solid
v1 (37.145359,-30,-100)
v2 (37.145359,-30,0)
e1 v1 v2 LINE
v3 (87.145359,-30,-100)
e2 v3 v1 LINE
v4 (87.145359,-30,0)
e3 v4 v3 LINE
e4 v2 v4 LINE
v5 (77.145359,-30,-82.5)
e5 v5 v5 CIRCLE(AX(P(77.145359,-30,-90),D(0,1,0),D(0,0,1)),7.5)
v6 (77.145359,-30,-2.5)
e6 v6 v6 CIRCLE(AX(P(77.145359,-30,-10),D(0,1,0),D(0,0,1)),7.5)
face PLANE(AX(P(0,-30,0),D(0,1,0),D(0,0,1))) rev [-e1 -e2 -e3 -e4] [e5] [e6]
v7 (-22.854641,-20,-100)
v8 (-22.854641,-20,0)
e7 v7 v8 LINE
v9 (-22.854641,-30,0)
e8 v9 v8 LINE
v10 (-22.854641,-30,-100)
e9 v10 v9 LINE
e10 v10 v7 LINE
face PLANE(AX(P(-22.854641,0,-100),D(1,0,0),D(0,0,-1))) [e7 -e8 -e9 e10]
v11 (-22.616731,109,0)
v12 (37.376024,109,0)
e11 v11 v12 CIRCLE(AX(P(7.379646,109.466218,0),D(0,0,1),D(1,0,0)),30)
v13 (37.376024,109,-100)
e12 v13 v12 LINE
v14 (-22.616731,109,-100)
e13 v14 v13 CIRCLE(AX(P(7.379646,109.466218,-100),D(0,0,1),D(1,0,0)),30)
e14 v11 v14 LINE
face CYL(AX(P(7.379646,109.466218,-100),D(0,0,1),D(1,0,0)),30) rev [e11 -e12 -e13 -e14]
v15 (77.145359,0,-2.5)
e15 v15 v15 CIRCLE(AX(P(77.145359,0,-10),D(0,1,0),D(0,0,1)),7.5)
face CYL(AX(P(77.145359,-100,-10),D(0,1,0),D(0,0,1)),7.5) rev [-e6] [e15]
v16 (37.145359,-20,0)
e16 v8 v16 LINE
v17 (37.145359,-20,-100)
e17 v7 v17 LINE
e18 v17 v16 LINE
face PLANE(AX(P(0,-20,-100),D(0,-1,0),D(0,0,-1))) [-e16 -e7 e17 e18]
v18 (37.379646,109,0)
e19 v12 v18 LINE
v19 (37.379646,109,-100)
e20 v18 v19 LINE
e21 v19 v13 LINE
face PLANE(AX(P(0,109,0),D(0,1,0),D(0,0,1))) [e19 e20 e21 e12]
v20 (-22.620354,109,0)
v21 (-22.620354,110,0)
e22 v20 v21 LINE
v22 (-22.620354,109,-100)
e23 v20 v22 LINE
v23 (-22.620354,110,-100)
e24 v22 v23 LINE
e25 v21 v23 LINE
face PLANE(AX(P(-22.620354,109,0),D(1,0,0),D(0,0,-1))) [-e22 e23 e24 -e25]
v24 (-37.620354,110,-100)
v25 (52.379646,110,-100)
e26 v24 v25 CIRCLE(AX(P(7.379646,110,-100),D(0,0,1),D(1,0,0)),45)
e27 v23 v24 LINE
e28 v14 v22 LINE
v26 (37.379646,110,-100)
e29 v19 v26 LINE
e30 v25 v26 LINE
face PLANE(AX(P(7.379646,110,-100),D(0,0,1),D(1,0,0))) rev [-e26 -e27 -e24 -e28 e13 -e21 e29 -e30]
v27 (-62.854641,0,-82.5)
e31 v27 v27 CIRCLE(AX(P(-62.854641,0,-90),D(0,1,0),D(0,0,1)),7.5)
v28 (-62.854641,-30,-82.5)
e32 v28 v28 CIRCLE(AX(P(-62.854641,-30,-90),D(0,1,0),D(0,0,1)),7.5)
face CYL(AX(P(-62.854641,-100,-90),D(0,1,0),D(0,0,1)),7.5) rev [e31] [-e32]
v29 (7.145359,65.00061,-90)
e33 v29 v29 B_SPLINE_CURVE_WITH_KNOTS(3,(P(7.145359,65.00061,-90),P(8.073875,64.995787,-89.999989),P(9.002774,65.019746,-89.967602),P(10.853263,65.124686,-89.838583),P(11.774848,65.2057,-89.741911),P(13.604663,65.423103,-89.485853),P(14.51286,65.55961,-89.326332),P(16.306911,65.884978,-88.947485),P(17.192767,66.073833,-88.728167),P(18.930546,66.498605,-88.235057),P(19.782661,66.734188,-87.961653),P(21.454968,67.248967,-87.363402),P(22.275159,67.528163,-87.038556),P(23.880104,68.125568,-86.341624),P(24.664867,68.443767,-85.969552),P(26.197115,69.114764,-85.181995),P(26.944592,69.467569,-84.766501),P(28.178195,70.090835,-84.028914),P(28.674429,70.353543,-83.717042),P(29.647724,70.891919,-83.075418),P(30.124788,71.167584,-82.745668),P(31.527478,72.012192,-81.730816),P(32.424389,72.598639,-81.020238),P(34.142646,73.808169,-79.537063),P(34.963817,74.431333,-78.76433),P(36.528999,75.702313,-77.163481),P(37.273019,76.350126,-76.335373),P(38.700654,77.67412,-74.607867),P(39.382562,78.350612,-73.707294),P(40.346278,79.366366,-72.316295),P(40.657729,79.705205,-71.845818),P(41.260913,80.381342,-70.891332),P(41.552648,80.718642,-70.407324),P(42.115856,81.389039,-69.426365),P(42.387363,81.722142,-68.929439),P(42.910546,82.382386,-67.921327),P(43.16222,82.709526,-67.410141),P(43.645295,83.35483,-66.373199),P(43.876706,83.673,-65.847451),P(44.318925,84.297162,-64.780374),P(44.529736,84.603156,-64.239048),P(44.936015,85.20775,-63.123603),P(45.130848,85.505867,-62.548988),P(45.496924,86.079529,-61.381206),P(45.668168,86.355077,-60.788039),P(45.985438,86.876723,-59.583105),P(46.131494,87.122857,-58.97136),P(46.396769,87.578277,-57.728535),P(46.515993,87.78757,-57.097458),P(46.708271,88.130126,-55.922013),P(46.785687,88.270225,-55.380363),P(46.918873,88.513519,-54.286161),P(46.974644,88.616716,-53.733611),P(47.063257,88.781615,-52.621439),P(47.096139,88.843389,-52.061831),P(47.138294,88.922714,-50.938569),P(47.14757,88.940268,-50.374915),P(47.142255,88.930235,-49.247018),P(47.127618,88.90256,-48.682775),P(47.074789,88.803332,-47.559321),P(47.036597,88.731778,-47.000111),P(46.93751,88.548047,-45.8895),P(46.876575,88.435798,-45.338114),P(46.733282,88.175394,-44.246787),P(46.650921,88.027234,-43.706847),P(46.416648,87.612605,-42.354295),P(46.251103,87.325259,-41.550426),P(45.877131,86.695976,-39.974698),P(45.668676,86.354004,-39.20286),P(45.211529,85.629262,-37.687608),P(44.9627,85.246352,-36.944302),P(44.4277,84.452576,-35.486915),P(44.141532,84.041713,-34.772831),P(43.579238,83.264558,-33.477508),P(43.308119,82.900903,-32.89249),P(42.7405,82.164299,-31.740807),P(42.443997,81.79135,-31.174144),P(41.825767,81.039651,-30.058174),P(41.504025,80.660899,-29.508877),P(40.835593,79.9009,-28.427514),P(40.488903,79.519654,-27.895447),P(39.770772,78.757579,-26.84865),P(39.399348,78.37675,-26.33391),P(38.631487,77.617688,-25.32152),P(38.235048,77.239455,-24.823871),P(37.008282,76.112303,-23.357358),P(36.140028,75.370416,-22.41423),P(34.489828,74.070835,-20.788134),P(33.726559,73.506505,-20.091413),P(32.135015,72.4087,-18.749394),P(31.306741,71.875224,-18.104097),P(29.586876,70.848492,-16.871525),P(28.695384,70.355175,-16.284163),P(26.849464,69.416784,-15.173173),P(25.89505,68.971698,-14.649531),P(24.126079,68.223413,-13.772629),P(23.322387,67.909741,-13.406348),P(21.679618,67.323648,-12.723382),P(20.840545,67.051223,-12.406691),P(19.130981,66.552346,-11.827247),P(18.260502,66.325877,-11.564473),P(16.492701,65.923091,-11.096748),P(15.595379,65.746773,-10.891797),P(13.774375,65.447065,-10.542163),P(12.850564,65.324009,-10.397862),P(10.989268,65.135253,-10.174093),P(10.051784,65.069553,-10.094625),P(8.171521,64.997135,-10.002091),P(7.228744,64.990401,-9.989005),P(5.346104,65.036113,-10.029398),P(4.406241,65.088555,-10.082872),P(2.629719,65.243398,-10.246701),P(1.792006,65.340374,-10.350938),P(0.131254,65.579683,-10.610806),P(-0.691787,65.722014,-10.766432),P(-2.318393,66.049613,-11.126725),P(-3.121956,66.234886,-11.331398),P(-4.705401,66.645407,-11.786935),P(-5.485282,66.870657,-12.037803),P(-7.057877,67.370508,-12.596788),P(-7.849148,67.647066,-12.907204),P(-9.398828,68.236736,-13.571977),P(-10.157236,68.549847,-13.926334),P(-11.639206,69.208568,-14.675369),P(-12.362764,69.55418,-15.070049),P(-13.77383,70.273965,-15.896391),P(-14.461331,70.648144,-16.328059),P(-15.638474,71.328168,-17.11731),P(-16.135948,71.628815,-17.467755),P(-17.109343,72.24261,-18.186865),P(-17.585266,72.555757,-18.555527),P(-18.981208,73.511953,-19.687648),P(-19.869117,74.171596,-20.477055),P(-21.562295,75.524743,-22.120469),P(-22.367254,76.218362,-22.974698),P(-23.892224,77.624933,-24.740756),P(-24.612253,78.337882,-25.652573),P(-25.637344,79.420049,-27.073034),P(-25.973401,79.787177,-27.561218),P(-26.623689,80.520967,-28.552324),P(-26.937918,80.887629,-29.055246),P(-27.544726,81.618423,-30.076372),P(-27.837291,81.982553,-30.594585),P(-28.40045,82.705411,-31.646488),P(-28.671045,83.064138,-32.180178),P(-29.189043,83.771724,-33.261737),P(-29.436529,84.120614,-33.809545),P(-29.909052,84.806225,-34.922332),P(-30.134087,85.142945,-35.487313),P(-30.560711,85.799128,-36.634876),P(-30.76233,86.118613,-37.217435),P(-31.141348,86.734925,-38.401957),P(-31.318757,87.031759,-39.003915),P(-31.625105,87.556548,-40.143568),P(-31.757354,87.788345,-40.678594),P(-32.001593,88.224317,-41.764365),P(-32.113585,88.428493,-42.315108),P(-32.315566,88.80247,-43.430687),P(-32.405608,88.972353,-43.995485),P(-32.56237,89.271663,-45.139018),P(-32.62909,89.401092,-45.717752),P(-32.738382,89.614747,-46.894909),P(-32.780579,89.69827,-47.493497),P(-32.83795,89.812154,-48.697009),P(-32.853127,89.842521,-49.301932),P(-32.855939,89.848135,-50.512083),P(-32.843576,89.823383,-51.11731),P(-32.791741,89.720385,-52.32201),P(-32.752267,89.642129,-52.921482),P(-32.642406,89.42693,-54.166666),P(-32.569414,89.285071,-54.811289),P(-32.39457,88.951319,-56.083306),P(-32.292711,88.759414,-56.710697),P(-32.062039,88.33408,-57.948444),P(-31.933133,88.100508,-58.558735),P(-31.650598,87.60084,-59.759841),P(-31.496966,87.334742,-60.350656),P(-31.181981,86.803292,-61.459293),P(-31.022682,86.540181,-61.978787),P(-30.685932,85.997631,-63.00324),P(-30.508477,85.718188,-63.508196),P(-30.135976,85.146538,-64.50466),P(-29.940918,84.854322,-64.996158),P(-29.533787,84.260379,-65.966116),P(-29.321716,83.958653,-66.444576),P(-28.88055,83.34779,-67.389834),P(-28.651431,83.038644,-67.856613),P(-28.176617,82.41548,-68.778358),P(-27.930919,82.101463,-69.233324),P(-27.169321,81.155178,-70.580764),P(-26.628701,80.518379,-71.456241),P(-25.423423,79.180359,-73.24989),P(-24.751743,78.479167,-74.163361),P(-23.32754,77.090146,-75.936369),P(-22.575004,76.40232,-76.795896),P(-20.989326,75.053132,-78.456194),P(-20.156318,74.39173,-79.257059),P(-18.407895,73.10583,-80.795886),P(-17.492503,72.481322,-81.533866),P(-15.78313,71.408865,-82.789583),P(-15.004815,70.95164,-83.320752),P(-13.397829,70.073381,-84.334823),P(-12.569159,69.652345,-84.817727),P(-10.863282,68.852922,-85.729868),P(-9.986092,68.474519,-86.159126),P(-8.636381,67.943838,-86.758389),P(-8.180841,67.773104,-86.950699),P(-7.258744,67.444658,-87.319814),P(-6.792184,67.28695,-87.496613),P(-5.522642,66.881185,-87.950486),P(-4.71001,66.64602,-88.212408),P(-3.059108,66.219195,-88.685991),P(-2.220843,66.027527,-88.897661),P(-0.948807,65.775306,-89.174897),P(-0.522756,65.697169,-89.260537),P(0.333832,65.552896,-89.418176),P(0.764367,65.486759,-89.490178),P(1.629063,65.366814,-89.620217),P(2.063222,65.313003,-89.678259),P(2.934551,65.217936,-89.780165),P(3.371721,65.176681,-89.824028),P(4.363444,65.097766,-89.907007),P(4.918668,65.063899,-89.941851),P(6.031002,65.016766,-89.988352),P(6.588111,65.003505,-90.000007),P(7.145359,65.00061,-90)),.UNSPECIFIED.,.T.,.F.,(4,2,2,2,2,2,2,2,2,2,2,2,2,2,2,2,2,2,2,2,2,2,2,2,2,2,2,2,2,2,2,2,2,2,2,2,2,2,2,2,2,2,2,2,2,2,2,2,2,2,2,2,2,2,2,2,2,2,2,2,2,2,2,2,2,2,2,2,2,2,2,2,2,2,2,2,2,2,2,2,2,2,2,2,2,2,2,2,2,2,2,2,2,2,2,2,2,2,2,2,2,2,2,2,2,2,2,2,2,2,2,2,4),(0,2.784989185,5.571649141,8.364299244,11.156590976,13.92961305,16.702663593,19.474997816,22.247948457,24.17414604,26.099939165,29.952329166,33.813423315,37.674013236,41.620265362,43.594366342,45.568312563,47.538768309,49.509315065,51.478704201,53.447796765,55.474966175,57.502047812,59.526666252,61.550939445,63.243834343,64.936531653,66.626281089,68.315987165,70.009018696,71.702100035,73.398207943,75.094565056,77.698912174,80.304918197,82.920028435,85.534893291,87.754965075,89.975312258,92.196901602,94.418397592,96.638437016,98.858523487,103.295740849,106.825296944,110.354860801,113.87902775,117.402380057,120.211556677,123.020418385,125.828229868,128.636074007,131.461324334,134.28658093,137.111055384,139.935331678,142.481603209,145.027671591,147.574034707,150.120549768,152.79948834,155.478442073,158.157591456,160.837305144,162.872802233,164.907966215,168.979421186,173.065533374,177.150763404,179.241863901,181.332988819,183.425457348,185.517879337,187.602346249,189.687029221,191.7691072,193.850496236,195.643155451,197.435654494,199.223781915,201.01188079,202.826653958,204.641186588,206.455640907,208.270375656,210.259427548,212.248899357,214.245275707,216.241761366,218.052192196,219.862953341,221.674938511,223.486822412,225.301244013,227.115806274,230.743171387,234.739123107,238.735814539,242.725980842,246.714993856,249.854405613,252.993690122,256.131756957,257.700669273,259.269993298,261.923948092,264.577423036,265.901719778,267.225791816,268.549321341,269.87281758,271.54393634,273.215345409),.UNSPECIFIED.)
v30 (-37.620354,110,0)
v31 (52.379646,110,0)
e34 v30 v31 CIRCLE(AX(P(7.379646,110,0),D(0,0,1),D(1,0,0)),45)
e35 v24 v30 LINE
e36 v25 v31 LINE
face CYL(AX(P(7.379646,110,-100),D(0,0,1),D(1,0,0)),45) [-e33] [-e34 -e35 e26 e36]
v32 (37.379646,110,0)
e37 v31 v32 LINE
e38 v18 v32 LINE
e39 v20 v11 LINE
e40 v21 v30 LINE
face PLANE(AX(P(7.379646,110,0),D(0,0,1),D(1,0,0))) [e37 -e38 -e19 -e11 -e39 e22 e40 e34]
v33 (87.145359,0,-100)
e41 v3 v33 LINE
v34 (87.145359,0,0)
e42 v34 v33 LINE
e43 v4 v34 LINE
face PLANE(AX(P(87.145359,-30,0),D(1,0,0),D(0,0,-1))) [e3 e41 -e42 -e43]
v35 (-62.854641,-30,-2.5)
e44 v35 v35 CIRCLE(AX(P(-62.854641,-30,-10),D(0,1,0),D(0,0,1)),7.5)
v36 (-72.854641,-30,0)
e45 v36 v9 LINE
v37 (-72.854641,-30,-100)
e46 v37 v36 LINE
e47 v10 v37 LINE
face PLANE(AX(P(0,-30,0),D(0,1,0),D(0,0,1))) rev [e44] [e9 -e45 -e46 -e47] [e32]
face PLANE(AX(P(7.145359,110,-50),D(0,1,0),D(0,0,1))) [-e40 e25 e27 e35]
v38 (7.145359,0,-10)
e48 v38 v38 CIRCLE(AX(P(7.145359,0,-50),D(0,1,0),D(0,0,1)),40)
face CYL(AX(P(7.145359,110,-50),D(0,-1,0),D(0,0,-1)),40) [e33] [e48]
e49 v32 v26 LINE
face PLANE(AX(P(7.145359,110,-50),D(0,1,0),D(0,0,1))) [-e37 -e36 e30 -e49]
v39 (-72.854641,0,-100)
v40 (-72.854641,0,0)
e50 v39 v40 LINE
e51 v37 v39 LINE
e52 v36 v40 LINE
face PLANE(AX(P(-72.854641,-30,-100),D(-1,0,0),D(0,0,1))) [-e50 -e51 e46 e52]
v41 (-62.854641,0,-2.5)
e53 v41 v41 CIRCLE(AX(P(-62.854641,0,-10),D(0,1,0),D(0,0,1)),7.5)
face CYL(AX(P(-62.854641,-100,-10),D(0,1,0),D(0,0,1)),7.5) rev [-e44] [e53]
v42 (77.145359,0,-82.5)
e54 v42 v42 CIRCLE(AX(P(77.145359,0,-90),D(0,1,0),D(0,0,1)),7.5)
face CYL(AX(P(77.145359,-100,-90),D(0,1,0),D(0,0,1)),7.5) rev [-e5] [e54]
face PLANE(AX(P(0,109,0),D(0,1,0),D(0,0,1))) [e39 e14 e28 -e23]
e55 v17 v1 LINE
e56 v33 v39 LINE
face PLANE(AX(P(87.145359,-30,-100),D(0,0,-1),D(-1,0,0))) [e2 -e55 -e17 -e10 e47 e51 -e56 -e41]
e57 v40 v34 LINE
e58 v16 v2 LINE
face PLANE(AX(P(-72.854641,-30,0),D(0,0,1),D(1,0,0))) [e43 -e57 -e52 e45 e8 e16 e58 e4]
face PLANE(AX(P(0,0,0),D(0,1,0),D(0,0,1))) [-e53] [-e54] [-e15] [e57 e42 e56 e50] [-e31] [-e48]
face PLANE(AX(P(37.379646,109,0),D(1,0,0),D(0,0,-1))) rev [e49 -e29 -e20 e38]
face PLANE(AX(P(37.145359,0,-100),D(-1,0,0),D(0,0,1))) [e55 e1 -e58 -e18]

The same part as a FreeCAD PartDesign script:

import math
import FreeCAD as App
import Part
import Sketcher

V = App.Vector
Q = App.Units.Quantity

doc = App.newDocument("Part")
body = doc.addObject("PartDesign::Body", "Body")

# Sketch on XZ plane
sketch1 = body.newObject("Sketcher::SketchObject", "Sketch")
sketch1.AttachmentSupport = (doc.getObject("XZ_Plane"), [""])
sketch1.MapMode = "FlatFace"
sketch1.addGeometry([
    Part.LineSegment(V(-72.854641, -100, 0), V(-72.854641, 0, 0)),
    Part.LineSegment(V(-72.854641, 0, 0), V(87.145359, 0, 0)),
    Part.LineSegment(V(87.145359, 0, 0), V(87.145359, -100, 0)),
    Part.LineSegment(V(87.145359, -100, 0), V(-72.854641, -100, 0)),
], False)
sketch1.addConstraint([
    Sketcher.Constraint("Coincident", 0, 2, 1, 1),
    Sketcher.Constraint("Coincident", 1, 2, 2, 1),
    Sketcher.Constraint("Coincident", 2, 2, 3, 1),
    Sketcher.Constraint("Coincident", 3, 2, 0, 1),
    Sketcher.Constraint("Vertical", 0),
    Sketcher.Constraint("Horizontal", 1),
    Sketcher.Constraint("Vertical", 2),
    Sketcher.Constraint("Horizontal", 3),
    Sketcher.Constraint("PointOnObject", 0, 2, -1),
    Sketcher.Constraint("DistanceX", 1, 1, 1, 2, Q("160 mm")),
    Sketcher.Constraint("DistanceY", 0, 1, 0, 2, Q("100 mm")),
    Sketcher.Constraint("DistanceX", 0, 2, -1, 1, Q("72.854641 mm")),
])
pad1 = body.newObject("PartDesign::Pad", "Pad")
pad1.Profile = sketch1
pad1.Length = 30

# Sketch on XZ plane
sketch2 = body.newObject("Sketcher::SketchObject", "Sketch001")
sketch2.AttachmentSupport = (doc.getObject("XZ_Plane"), [""])
sketch2.MapMode = "FlatFace"
sketch2.addGeometry(Part.Circle(V(7.145359, -50, 0), V(0, 0, 1), 40), False)
sketch2.addConstraint([
    Sketcher.Constraint("Diameter", 0, Q("80 mm")),
    Sketcher.Constraint("DistanceY", 0, 3, -1, 1, Q("50 mm")),
    Sketcher.Constraint("DistanceX", -1, 1, 0, 3, Q("7.145359 mm")),
])
pad2 = body.newObject("PartDesign::Pad", "Pad001")
pad2.Profile = sketch2
pad2.Length = 110
pad2.Reversed = True

# Sketch on XY plane
sketch3 = body.newObject("Sketcher::SketchObject", "Sketch002")
sketch3.AttachmentSupport = (doc.getObject("XY_Plane"), [""])
sketch3.MapMode = "FlatFace"
sketch3.addGeometry([
    Part.LineSegment(V(52.379646, 110, 0), V(-37.620354, 110, 0)),
    Part.ArcOfCircle(Part.Circle(V(7.379646, 110, 0), V(0, 0, 1), 45), math.radians(180), math.radians(360)),
    Part.LineSegment(V(-22.620354, 109.466218, 0), V(37.379646, 109.466218, 0)),
    Part.ArcOfCircle(Part.Circle(V(7.379646, 109.466218, 0), V(0, 0, 1), 30), math.radians(180), math.radians(360)),
], False)
sketch3.addConstraint([
    Sketcher.Constraint("Coincident", 0, 1, 1, 2),
    Sketcher.Constraint("Coincident", 1, 1, 0, 2),
    Sketcher.Constraint("Coincident", 2, 1, 3, 1),
    Sketcher.Constraint("Coincident", 3, 2, 2, 2),
    Sketcher.Constraint("Horizontal", 0),
    Sketcher.Constraint("Horizontal", 2),
    Sketcher.Constraint("Horizontal", 1, 3, 0, 1),
    Sketcher.Constraint("Horizontal", 3, 3, 2, 1),
    Sketcher.Constraint("Vertical", 1, 3, 3, 3),
    Sketcher.Constraint("Radius", 1, Q("45 mm")),
    Sketcher.Constraint("Radius", 3, Q("30 mm")),
    Sketcher.Constraint("DistanceY", -1, 1, 1, 3, Q("110 mm")),
    Sketcher.Constraint("DistanceY", -1, 1, 3, 3, Q("109.466218 mm")),
    Sketcher.Constraint("DistanceX", -1, 1, 1, 3, Q("7.379646 mm")),
])
pad3 = body.newObject("PartDesign::Pad", "Pad002")
pad3.Profile = sketch3
pad3.Length = 100
pad3.Reversed = True

# Sketch on XY plane
sketch4 = body.newObject("Sketcher::SketchObject", "Sketch003")
sketch4.AttachmentSupport = (doc.getObject("XY_Plane"), [""])
sketch4.MapMode = "FlatFace"
sketch4.addGeometry([
    Part.LineSegment(V(37.379646, 109.466218, 0), V(-22.620354, 109.466218, 0)),
    Part.ArcOfCircle(Part.Circle(V(7.379646, 109.466218, 0), V(0, 0, 1), 30), math.radians(180), math.radians(360)),
], False)
sketch4.addConstraint([
    Sketcher.Constraint("Coincident", 0, 1, 1, 2),
    Sketcher.Constraint("Coincident", 1, 1, 0, 2),
    Sketcher.Constraint("Horizontal", 0),
    Sketcher.Constraint("Horizontal", 1, 3, 0, 1),
    Sketcher.Constraint("Radius", 1, Q("30 mm")),
    Sketcher.Constraint("DistanceY", -1, 1, 1, 3, Q("109.466218 mm")),
    Sketcher.Constraint("DistanceX", -1, 1, 1, 3, Q("7.379646 mm")),
])
pocket1 = body.newObject("PartDesign::Pocket", "Pocket")
pocket1.Profile = sketch4
pocket1.Length = 100

# Sketch on XZ plane
sketch5 = body.newObject("Sketcher::SketchObject", "Sketch004")
sketch5.AttachmentSupport = (doc.getObject("XZ_Plane"), [""])
sketch5.MapMode = "FlatFace"
sketch5.AttachmentOffset = App.Placement(V(0, 0, -110), App.Rotation())
sketch5.addGeometry([
    Part.LineSegment(V(-22.620354, -100, 0), V(-22.620354, 0, 0)),
    Part.LineSegment(V(-22.620354, 0, 0), V(37.379646, 0, 0)),
    Part.LineSegment(V(37.379646, 0, 0), V(37.379646, -100, 0)),
    Part.LineSegment(V(37.379646, -100, 0), V(-22.620354, -100, 0)),
], False)
sketch5.addConstraint([
    Sketcher.Constraint("Coincident", 0, 2, 1, 1),
    Sketcher.Constraint("Coincident", 1, 2, 2, 1),
    Sketcher.Constraint("Coincident", 2, 2, 3, 1),
    Sketcher.Constraint("Coincident", 3, 2, 0, 1),
    Sketcher.Constraint("Vertical", 0),
    Sketcher.Constraint("Horizontal", 1),
    Sketcher.Constraint("Vertical", 2),
    Sketcher.Constraint("Horizontal", 3),
    Sketcher.Constraint("PointOnObject", 0, 2, -1),
    Sketcher.Constraint("DistanceX", 1, 1, 1, 2, Q("60 mm")),
    Sketcher.Constraint("DistanceY", 0, 1, 0, 2, Q("100 mm")),
    Sketcher.Constraint("DistanceX", 0, 2, -1, 1, Q("22.620354 mm")),
])
pocket2 = body.newObject("PartDesign::Pocket", "Pocket001")
pocket2.Profile = sketch5
pocket2.Length = 1
pocket2.Reversed = True

# Sketch on XY plane
sketch6 = body.newObject("Sketcher::SketchObject", "Sketch005")
sketch6.AttachmentSupport = (doc.getObject("XY_Plane"), [""])
sketch6.MapMode = "FlatFace"
sketch6.addGeometry([
    Part.LineSegment(V(-22.854641, -20, 0), V(-22.854641, -30, 0)),
    Part.LineSegment(V(-22.854641, -30, 0), V(37.145359, -30, 0)),
    Part.LineSegment(V(37.145359, -30, 0), V(37.145359, -20, 0)),
    Part.LineSegment(V(37.145359, -20, 0), V(-22.854641, -20, 0)),
], False)
sketch6.addConstraint([
    Sketcher.Constraint("Coincident", 0, 2, 1, 1),
    Sketcher.Constraint("Coincident", 1, 2, 2, 1),
    Sketcher.Constraint("Coincident", 2, 2, 3, 1),
    Sketcher.Constraint("Coincident", 3, 2, 0, 1),
    Sketcher.Constraint("Vertical", 0),
    Sketcher.Constraint("Horizontal", 1),
    Sketcher.Constraint("Vertical", 2),
    Sketcher.Constraint("Horizontal", 3),
    Sketcher.Constraint("DistanceX", 1, 1, 1, 2, Q("60 mm")),
    Sketcher.Constraint("DistanceY", 0, 2, 0, 1, Q("10 mm")),
    Sketcher.Constraint("DistanceY", 0, 2, -1, 1, Q("30 mm")),
    Sketcher.Constraint("DistanceX", 0, 2, -1, 1, Q("22.854641 mm")),
])
pocket3 = body.newObject("PartDesign::Pocket", "Pocket002")
pocket3.Profile = sketch6
pocket3.Length = 100

# Sketch on XZ plane
sketch7 = body.newObject("Sketcher::SketchObject", "Sketch006")
sketch7.AttachmentSupport = (doc.getObject("XZ_Plane"), [""])
sketch7.MapMode = "FlatFace"
sketch7.addGeometry([
    Part.Circle(V(77.145359, -90, 0), V(0, 0, 1), 7.5),
    Part.Circle(V(-62.854641, -90, 0), V(0, 0, 1), 7.5),
    Part.Circle(V(-62.854641, -10, 0), V(0, 0, 1), 7.5),
    Part.Circle(V(77.145359, -10, 0), V(0, 0, 1), 7.5),
], False)
sketch7.addConstraint([
    Sketcher.Constraint("Equal", 0, 1),
    Sketcher.Constraint("Equal", 1, 2),
    Sketcher.Constraint("Equal", 2, 3),
    Sketcher.Constraint("Horizontal", 0, 3, 1, 3),
    Sketcher.Constraint("Horizontal", 2, 3, 3, 3),
    Sketcher.Constraint("Vertical", 1, 3, 2, 3),
    Sketcher.Constraint("Vertical", 0, 3, 3, 3),
    Sketcher.Constraint("Diameter", 0, Q("15 mm")),
    Sketcher.Constraint("DistanceY", 0, 3, -1, 1, Q("90 mm")),
    Sketcher.Constraint("DistanceY", 2, 3, -1, 1, Q("10 mm")),
    Sketcher.Constraint("DistanceX", 1, 3, 0, 3, Q("140 mm")),
    Sketcher.Constraint("DistanceX", -1, 1, 0, 3, Q("77.145359 mm")),
])
pocket4 = body.newObject("PartDesign::Pocket", "Pocket003")
pocket4.Profile = sketch7
pocket4.Length = 100
pocket4.Reversed = True

doc.recompute()
